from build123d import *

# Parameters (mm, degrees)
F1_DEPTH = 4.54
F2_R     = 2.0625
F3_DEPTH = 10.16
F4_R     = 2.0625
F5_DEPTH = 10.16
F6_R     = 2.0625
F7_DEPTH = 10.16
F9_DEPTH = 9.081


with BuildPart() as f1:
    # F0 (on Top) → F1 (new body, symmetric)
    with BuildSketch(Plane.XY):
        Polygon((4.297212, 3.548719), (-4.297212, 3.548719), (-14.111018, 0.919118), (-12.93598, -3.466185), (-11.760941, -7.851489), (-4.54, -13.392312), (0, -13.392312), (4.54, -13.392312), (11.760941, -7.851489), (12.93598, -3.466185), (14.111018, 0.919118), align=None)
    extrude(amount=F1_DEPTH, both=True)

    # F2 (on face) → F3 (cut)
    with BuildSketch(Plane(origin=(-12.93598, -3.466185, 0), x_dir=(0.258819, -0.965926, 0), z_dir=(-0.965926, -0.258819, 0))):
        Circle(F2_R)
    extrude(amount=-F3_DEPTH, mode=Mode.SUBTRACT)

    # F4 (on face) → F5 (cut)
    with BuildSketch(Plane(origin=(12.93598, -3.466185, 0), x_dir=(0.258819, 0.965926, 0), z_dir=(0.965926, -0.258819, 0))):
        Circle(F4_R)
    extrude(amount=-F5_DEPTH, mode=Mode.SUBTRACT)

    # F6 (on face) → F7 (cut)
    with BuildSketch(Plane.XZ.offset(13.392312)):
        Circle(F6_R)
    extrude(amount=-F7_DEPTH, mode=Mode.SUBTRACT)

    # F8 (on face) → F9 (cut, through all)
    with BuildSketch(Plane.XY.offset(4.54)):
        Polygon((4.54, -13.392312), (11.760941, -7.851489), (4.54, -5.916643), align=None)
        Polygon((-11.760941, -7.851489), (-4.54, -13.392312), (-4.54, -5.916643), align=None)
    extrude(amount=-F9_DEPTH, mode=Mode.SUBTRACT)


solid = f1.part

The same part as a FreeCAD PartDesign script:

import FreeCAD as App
import Part
import Sketcher
Q = App.Units.Quantity

doc = App.newDocument("Part")
body = doc.addObject("PartDesign::Body", "Body")

# Sketch on XY plane
sketch1 = body.newObject("Sketcher::SketchObject", "Sketch")
sketch1.AttachmentSupport = (doc.getObject("XY_Plane"), [""])
sketch1.MapMode = "FlatFace"
sketch1.addGeometry(Part.LineSegment(App.Vector(4.3, 3.5, 0), App.Vector(-4.3, 3.5, 0)), False)
sketch1.addGeometry(Part.LineSegment(App.Vector(-4.3, 3.5, 0), App.Vector(-14.1, 0.9, 0)), False)
sketch1.addGeometry(Part.LineSegment(App.Vector(-14.1, 0.9, 0), App.Vector(-12.9, -3.5, 0)), False)
sketch1.addGeometry(Part.LineSegment(App.Vector(-12.9, -3.5, 0), App.Vector(-11.8, -7.9, 0)), False)
sketch1.addGeometry(Part.LineSegment(App.Vector(-11.8, -7.9, 0), App.Vector(-4.5, -13.4, 0)), False)
sketch1.addGeometry(Part.LineSegment(App.Vector(-4.5, -13.4, 0), App.Vector(4.5, -13.4, 0)), False)
sketch1.addGeometry(Part.LineSegment(App.Vector(4.5, -13.4, 0), App.Vector(11.8, -7.9, 0)), False)
sketch1.addGeometry(Part.LineSegment(App.Vector(11.8, -7.9, 0), App.Vector(12.9, -3.5, 0)), False)
sketch1.addGeometry(Part.LineSegment(App.Vector(12.9, -3.5, 0), App.Vector(14.1, 0.9, 0)), False)
sketch1.addGeometry(Part.LineSegment(App.Vector(14.1, 0.9, 0), App.Vector(4.3, 3.5, 0)), False)
sketch1.addConstraint(Sketcher.Constraint("Coincident", 0, 2, 1, 1))
sketch1.addConstraint(Sketcher.Constraint("Coincident", 1, 2, 2, 1))
sketch1.addConstraint(Sketcher.Constraint("Coincident", 2, 2, 3, 1))
sketch1.addConstraint(Sketcher.Constraint("Coincident", 3, 2, 4, 1))
sketch1.addConstraint(Sketcher.Constraint("Coincident", 4, 2, 5, 1))
sketch1.addConstraint(Sketcher.Constraint("Coincident", 5, 2, 6, 1))
sketch1.addConstraint(Sketcher.Constraint("Coincident", 6, 2, 7, 1))
sketch1.addConstraint(Sketcher.Constraint("Coincident", 7, 2, 8, 1))
sketch1.addConstraint(Sketcher.Constraint("Coincident", 8, 2, 9, 1))
sketch1.addConstraint(Sketcher.Constraint("Coincident", 9, 2, 0, 1))
sketch1.addConstraint(Sketcher.Constraint("Horizontal", 0))
sketch1.addConstraint(Sketcher.Constraint("Horizontal", 5))
sketch1.addConstraint(Sketcher.Constraint("Symmetric", 3, 2, 6, 2, -2))
sketch1.addConstraint(Sketcher.Constraint("Symmetric", 2, 2, 7, 2, -2))
sketch1.addConstraint(Sketcher.Constraint("Symmetric", 1, 2, 8, 2, -2))
sketch1.addConstraint(Sketcher.Constraint("Perpendicular", 1, 2))
sketch1.addConstraint(Sketcher.Constraint("Parallel", 2, 3))
sketch1.addConstraint(Sketcher.Constraint("Perpendicular", 8, 9))
sketch1.addConstraint(Sketcher.Constraint("Equal", 2, 3))
sketch1.addConstraint(Sketcher.Constraint("Equal", 4, 6))
sketch1.addConstraint(Sketcher.Constraint("Angle", 1, Q("-165.000002 deg")))
sketch1.addConstraint(Sketcher.Constraint("Distance", 1, Q("0.4 in")))
sketch1.addConstraint(Sketcher.Constraint("Angle", 4, Q("-37.5 deg")))
sketch1.addConstraint(Sketcher.Constraint("DistanceX", 5, 1, 5, 2, 9.08))
sketch1.addConstraint(Sketcher.Constraint("Distance", 2, 4.54))
sketch1.addConstraint(Sketcher.Constraint("DistanceX", 0, 2, 0, 1, 8.594424))
sketch1.addConstraint(Sketcher.Constraint("DistanceY", -1, 1, 0, 2, 3.548719))
pad1 = body.newObject("PartDesign::Pad", "Pad")
pad1.Profile = sketch1
pad1.Length = 9.08
pad1.Midplane = True

# Sketch on an angled plane
sketch2 = body.newObject("Sketcher::SketchObject", "Sketch001")
sketch2.Placement = App.Placement(App.Vector(-12.93598, -3.466185, 0), App.Rotation(App.Vector(0.25881896, -0.965925849, 0), App.Vector(0, 0, 1), App.Vector(-0.965925849, -0.25881896, 0), "ZXY"))
sketch2.addGeometry(Part.Circle(App.Vector(0, 0, 0), App.Vector(0, 0, 1), 2.1), False)
sketch2.addConstraint(Sketcher.Constraint("Coincident", 0, 3, -1, 1))
sketch2.addConstraint(Sketcher.Constraint("Diameter", 0, 4.125))
pocket1 = body.newObject("PartDesign::Pocket", "Pocket")
pocket1.Profile = sketch2
pocket1.Length = Q("0.4 in")

# Sketch on an angled plane
sketch3 = body.newObject("Sketcher::SketchObject", "Sketch002")
sketch3.Placement = App.Placement(App.Vector(12.93598, -3.466185, 0), App.Rotation(App.Vector(0.25881896, 0.965925849, 0), App.Vector(0, 0, 1), App.Vector(0.965925849, -0.25881896, 0), "ZXY"))
sketch3.addGeometry(Part.Circle(App.Vector(0, 0, 0), App.Vector(0, 0, 1), 2.1), False)
sketch3.addConstraint(Sketcher.Constraint("Coincident", 0, 3, -1, 1))
sketch3.addConstraint(Sketcher.Constraint("Diameter", 0, 4.125))
pocket2 = body.newObject("PartDesign::Pocket", "Pocket001")
pocket2.Profile = sketch3
pocket2.Length = Q("0.4 in")

# Sketch on XZ plane
sketch4 = body.newObject("Sketcher::SketchObject", "Sketch003")
sketch4.AttachmentSupport = (doc.getObject("XZ_Plane"), [""])
sketch4.MapMode = "FlatFace"
sketch4.AttachmentOffset = App.Placement(App.Vector(0, 0, 13.392312), App.Rotation())
sketch4.addGeometry(Part.Circle(App.Vector(0, 0, 0), App.Vector(0, 0, 1), 2.1), False)
sketch4.addConstraint(Sketcher.Constraint("Coincident", 0, 3, -1, 1))
sketch4.addConstraint(Sketcher.Constraint("Diameter", 0, 4.125))
pocket3 = body.newObject("PartDesign::Pocket", "Pocket002")
pocket3.Profile = sketch4
pocket3.Length = Q("0.4 in")

# Sketch on XY plane
sketch5 = body.newObject("Sketcher::SketchObject", "Sketch004")
sketch5.AttachmentSupport = (doc.getObject("XY_Plane"), [""])
sketch5.MapMode = "FlatFace"
sketch5.AttachmentOffset = App.Placement(App.Vector(0, 0, 4.54), App.Rotation())
sketch5.addGeometry(Part.LineSegment(App.Vector(5, -13, 0), App.Vector(12, -8, 0)), False)
sketch5.addGeometry(Part.LineSegment(App.Vector(12, -8, 0), App.Vector(5, -6, 0)), False)
sketch5.addGeometry(Part.LineSegment(App.Vector(5, -6, 0), App.Vector(5, -13, 0)), False)
sketch5.addGeometry(Part.LineSegment(App.Vector(-12, -8, 0), App.Vector(-5, -13, 0)), False)
sketch5.addGeometry(Part.LineSegment(App.Vector(-5, -13, 0), App.Vector(-5, -6, 0)), False)
sketch5.addGeometry(Part.LineSegment(App.Vector(-5, -6, 0), App.Vector(-12, -8, 0)), False)
sketch5.addConstraint(Sketcher.Constraint("Coincident", 0, 2, 1, 1))
sketch5.addConstraint(Sketcher.Constraint("Coincident", 1, 2, 2, 1))
sketch5.addConstraint(Sketcher.Constraint("Coincident", 2, 2, 0, 1))
sketch5.addConstraint(Sketcher.Constraint("Coincident", 3, 2, 4, 1))
sketch5.addConstraint(Sketcher.Constraint("Coincident", 4, 2, 5, 1))
sketch5.addConstraint(Sketcher.Constraint("Coincident", 5, 2, 3, 1))
sketch5.addConstraint(Sketcher.Constraint("Vertical", 2))
sketch5.addConstraint(Sketcher.Constraint("Vertical", 4))
sketch5.addConstraint(Sketcher.Constraint("Symmetric", 2, 2, 3, 2, -2))
sketch5.addConstraint(Sketcher.Constraint("Symmetric", 0, 2, 5, 2, -2))
sketch5.addConstraint(Sketcher.Constraint("Horizontal", 1, 2, 4, 2))
sketch5.addConstraint(Sketcher.Constraint("Angle", 1, Q("164.999995 deg")))
sketch5.addConstraint(Sketcher.Constraint("Angle", 0, Q("37.5 deg")))
sketch5.addConstraint(Sketcher.Constraint("DistanceY", 2, 2, 2, 1, 7.475669))
sketch5.addConstraint(Sketcher.Constraint("DistanceX", -1, 1, 1, 2, 4.54))
sketch5.addConstraint(Sketcher.Constraint("DistanceY", 0, 2, -1, 1, 7.851489))
pocket4 = body.newObject("PartDesign::Pocket", "Pocket003")
pocket4.Profile = sketch5
pocket4.Type = "ThroughAll"

doc.recompute()
